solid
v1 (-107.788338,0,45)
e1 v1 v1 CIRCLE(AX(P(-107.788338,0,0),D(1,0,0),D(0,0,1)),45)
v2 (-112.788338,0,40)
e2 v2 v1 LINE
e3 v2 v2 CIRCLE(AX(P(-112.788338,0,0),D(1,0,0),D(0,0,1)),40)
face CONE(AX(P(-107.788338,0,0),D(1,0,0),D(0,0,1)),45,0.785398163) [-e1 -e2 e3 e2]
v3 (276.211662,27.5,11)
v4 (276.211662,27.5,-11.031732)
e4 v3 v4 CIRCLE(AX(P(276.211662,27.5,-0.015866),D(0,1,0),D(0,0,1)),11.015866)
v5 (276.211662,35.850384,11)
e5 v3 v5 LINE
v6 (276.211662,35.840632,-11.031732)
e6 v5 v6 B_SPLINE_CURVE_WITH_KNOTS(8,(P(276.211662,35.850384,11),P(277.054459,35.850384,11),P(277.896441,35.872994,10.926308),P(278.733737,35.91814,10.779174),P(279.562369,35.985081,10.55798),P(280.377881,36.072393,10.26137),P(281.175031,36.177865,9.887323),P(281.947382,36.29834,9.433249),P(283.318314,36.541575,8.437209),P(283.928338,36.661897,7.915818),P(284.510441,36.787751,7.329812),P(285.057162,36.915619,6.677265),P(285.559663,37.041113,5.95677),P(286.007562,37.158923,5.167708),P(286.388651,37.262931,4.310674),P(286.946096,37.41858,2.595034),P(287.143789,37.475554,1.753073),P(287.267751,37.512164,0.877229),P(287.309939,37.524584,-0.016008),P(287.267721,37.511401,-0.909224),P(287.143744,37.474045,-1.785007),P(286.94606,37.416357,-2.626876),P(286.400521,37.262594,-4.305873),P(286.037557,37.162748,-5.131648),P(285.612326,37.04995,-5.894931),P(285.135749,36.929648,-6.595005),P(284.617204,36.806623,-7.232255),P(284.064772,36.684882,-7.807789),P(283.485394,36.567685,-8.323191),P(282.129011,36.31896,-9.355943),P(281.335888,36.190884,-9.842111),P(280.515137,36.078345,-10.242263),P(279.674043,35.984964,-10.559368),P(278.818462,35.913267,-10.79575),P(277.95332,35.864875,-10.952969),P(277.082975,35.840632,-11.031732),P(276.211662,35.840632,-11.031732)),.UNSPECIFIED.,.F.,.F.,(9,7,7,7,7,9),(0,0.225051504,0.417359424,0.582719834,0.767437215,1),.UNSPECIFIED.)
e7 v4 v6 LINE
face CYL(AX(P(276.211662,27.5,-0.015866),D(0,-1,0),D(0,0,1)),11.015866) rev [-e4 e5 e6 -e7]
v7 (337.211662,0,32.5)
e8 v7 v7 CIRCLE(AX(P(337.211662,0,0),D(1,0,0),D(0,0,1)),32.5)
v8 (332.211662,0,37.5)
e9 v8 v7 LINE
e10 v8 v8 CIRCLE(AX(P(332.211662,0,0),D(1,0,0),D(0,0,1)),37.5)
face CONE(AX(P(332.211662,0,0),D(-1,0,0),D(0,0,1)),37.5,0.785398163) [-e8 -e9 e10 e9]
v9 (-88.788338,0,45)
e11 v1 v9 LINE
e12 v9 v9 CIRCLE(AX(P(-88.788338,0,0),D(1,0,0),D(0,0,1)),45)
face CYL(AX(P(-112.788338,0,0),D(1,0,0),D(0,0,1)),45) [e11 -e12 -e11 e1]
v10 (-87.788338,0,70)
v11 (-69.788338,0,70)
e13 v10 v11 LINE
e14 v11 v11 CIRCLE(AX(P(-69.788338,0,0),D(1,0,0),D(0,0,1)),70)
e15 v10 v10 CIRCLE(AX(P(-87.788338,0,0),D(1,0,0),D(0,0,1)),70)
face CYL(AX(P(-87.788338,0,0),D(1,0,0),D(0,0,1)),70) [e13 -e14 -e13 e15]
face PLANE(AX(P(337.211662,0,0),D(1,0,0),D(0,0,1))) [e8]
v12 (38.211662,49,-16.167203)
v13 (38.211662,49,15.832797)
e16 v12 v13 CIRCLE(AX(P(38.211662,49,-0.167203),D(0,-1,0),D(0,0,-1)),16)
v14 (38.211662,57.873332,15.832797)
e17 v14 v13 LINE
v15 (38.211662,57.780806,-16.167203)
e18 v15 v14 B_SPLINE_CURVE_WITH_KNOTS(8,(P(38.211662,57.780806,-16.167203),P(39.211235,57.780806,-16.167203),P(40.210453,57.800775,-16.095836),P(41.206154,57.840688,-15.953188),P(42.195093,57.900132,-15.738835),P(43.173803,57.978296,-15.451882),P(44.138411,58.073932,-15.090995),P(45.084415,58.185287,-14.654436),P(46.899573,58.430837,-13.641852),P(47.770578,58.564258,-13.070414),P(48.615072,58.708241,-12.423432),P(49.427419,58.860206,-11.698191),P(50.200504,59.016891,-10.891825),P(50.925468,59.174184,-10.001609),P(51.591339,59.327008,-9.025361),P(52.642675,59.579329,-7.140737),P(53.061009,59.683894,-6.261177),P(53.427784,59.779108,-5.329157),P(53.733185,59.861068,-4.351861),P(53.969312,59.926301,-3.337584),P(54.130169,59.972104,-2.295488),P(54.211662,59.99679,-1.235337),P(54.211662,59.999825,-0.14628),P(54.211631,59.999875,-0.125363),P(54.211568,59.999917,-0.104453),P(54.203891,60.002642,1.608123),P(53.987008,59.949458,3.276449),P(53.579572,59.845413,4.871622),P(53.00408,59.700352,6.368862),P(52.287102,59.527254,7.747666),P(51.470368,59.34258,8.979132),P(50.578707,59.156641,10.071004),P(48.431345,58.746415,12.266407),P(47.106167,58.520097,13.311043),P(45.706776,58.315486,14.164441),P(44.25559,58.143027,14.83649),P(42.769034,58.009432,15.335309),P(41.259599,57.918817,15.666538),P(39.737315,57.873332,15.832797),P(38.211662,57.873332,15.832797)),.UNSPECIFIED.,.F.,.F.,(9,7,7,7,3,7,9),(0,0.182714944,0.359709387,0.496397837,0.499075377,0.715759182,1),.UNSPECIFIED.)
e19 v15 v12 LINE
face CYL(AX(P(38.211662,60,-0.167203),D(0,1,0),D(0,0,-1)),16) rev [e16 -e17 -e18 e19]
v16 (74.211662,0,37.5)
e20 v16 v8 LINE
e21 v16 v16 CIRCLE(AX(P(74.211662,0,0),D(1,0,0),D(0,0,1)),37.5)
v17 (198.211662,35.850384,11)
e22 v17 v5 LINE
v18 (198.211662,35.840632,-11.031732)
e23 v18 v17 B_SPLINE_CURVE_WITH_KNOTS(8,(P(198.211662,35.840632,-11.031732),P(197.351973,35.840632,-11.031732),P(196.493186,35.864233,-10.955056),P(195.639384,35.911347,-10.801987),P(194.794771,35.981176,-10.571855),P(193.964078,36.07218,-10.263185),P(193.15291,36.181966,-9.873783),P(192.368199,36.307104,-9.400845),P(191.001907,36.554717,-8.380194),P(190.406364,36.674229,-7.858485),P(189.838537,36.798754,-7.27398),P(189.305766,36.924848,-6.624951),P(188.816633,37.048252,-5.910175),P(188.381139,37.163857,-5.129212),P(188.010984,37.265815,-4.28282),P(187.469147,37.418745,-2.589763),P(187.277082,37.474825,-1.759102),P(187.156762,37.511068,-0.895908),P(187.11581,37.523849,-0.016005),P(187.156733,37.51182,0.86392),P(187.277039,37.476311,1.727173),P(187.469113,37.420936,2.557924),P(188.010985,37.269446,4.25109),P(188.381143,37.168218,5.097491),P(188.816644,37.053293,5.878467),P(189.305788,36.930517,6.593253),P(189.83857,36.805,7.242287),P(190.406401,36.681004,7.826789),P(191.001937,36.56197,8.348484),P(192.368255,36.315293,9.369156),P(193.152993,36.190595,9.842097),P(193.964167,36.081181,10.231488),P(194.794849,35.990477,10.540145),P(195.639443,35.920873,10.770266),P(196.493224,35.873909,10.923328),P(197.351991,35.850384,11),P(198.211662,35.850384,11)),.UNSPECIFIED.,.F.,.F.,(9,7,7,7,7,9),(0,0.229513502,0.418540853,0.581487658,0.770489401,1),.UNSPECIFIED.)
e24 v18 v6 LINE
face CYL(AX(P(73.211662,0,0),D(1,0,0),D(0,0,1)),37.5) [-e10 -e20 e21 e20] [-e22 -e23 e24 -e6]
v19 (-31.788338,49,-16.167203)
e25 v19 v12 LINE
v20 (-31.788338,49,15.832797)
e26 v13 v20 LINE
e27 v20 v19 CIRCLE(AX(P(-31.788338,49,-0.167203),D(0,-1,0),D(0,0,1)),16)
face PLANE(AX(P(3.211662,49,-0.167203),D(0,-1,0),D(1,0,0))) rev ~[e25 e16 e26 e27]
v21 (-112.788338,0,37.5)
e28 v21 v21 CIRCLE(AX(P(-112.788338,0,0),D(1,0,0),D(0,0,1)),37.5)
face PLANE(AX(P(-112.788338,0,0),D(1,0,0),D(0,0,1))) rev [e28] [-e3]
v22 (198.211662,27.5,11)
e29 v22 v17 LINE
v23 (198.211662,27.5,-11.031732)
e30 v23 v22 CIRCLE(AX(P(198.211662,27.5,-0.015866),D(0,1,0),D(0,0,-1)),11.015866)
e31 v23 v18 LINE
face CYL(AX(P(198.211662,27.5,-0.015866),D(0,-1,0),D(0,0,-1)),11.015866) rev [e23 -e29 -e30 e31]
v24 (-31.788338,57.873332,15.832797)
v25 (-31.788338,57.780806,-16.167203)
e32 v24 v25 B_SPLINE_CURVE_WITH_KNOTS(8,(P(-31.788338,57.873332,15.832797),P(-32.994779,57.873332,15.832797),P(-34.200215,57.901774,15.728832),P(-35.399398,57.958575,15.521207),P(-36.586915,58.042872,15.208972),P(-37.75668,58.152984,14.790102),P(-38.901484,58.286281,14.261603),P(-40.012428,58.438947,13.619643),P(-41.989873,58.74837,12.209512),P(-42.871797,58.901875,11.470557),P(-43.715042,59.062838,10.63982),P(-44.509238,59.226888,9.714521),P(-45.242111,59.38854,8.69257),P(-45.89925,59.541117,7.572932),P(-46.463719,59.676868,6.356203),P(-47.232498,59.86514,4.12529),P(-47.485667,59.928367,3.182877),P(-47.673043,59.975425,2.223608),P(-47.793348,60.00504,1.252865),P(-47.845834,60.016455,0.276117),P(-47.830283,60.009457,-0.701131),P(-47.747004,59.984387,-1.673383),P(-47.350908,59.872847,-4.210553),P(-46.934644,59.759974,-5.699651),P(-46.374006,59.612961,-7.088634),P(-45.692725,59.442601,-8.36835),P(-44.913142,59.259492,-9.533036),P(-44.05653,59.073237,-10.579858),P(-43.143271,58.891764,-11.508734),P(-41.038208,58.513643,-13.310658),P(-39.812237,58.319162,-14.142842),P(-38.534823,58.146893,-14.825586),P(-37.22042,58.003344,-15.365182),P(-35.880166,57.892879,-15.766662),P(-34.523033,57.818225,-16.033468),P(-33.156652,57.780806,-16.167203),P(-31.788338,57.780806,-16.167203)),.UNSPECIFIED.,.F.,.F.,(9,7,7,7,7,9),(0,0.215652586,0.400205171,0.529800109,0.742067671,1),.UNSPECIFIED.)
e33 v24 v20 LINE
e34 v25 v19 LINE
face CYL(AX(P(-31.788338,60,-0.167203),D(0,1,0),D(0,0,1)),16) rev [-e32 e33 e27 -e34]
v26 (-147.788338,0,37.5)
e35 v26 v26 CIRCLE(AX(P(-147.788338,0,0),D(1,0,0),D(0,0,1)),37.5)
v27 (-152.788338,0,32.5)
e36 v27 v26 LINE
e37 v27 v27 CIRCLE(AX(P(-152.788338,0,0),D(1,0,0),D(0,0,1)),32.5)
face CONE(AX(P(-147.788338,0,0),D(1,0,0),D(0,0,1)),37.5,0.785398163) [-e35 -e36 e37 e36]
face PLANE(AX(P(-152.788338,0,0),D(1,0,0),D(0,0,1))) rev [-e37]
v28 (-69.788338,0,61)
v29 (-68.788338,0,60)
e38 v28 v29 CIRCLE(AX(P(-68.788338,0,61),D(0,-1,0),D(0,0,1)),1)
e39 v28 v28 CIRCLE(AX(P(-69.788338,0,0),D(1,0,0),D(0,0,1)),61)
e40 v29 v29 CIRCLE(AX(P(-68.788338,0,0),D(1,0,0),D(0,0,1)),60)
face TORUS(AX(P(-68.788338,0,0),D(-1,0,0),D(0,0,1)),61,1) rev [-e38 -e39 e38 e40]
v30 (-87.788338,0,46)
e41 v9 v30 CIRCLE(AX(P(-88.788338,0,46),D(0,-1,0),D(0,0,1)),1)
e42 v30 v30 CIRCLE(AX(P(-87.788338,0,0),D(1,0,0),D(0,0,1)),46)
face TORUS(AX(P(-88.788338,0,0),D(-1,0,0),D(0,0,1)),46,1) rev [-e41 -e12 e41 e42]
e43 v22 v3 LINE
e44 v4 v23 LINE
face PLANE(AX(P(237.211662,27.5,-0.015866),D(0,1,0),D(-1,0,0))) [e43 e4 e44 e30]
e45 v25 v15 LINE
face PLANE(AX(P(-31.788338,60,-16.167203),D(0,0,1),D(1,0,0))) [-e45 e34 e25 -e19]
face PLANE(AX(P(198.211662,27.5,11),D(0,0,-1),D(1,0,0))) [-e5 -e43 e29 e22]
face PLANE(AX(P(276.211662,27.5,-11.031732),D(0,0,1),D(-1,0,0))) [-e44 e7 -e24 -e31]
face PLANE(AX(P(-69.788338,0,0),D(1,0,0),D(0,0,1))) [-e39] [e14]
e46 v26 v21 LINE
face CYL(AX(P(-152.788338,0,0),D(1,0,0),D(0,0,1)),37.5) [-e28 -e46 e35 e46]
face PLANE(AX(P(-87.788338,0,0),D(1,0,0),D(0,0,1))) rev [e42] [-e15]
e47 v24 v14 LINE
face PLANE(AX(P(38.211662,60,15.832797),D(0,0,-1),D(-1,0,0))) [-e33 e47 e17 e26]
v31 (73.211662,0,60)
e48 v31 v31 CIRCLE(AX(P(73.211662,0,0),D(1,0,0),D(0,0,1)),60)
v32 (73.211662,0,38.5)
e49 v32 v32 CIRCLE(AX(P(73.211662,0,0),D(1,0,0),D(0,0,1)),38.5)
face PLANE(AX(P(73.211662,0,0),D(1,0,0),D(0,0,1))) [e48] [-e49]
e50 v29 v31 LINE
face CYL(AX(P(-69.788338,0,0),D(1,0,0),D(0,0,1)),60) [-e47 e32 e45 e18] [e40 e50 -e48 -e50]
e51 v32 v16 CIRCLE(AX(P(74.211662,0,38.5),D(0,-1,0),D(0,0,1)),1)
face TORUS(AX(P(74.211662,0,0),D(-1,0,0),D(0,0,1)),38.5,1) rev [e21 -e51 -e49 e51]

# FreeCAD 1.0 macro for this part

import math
import FreeCAD as App
import Part
import Sketcher
from FreeCAD import Vector
Q = App.Units.Quantity


def edges_at(feature, points):
    """Names of the edges that pass closest to the given points."""
    edges = feature.Shape.Edges
    near = lambda p: min(range(len(edges)), key=lambda i: edges[i].distToShape(Part.Vertex(*p))[0])
    return sorted({f"Edge{near(p) + 1}" for p in points})


def add_polygon(sketch, points):
    """Adds a closed chain of lines whose ends are joined by coincident constraints."""
    first, n = sketch.GeometryCount, len(points)
    for a, b in zip(points, points[1:] + points[:1]):
        sketch.addGeometry(Part.LineSegment(App.Vector(*a, 0), App.Vector(*b, 0)), False)
    for i in range(n):
        sketch.addConstraint(Sketcher.Constraint("Coincident", first + i, 2, first + (i + 1) % n, 1))

doc = App.newDocument("Part")
body = doc.addObject("PartDesign::Body", "Body")

# Sketch on XY plane
sketch1 = doc.addObject("Sketcher::SketchObject", "Sketch")
body.addObject(sketch1)
sketch1.AttachmentSupport = (doc.XY_Plane, [""])
sketch1.MapMode = "FlatFace"
add_polygon(sketch1, [(-152.788338, 37.5), (-152.788338, 0), (337.211662, 0), (337.211662, 37.5), (73.211662, 37.5), (73.211662, 60), (-69.788338, 60), (-69.788338, 70), (-87.788338, 70), (-87.788338, 45), (-112.788338, 45), (-112.788338, 37.5)])  # lines 0-11
sketch1.addConstraint(Sketcher.Constraint("Vertical", 0))
sketch1.addConstraint(Sketcher.Constraint("Horizontal", 1))
sketch1.addConstraint(Sketcher.Constraint("Vertical", 2))
sketch1.addConstraint(Sketcher.Constraint("Horizontal", 3))
sketch1.addConstraint(Sketcher.Constraint("Vertical", 4))
sketch1.addConstraint(Sketcher.Constraint("Horizontal", 5))
sketch1.addConstraint(Sketcher.Constraint("Vertical", 6))
sketch1.addConstraint(Sketcher.Constraint("Horizontal", 7))
sketch1.addConstraint(Sketcher.Constraint("Vertical", 8))
sketch1.addConstraint(Sketcher.Constraint("Horizontal", 9))
sketch1.addConstraint(Sketcher.Constraint("Vertical", 10))
sketch1.addConstraint(Sketcher.Constraint("Horizontal", 11))
sketch1.addConstraint(Sketcher.Constraint("PointOnObject", 0, 2, -1))
sketch1.addConstraint(Sketcher.Constraint("Horizontal", 3, 2, 10, 2))
sketch1.addConstraint(Sketcher.Constraint("Equal", 9, 8))
sketch1.addConstraint(Sketcher.Constraint("DistanceX", 1, 1, 1, 2, Q("490 mm")))
sketch1.addConstraint(Sketcher.Constraint("DistanceX", 3, 2, 3, 1, Q("264 mm")))
sketch1.addConstraint(Sketcher.Constraint("DistanceX", 5, 2, 5, 1, Q("143 mm")))
sketch1.addConstraint(Sketcher.Constraint("DistanceX", 7, 2, 7, 1, Q("18 mm")))
sketch1.addConstraint(Sketcher.Constraint("DistanceX", 9, 2, 9, 1, Q("25 mm")))
sketch1.addConstraint(Sketcher.Constraint("DistanceY", 6, 1, 6, 2, Q("10 mm")))
sketch1.addConstraint(Sketcher.Constraint("DistanceY", 0, 2, 0, 1, Q("37.5 mm")))
sketch1.addConstraint(Sketcher.Constraint("DistanceY", 4, 1, 4, 2, Q("22.5 mm")))
sketch1.addConstraint(Sketcher.Constraint("DistanceX", 0, 2, -1, 1, Q("152.788338 mm")))
revolution = doc.addObject("PartDesign::Revolution", "Revolution")
body.addObject(revolution)
revolution.Profile = sketch1
revolution.ReferenceAxis = (sketch1, ["H_Axis"])
revolution.Angle = 360

# Sketch on XZ plane
sketch2 = doc.addObject("Sketcher::SketchObject", "Sketch001")
body.addObject(sketch2)
sketch2.AttachmentSupport = (doc.XZ_Plane, [""])
sketch2.MapMode = "FlatFace"
sketch2.AttachmentOffset = App.Placement(Vector(0, 0, -60), App.Rotation())
sketch2.addGeometry(Part.LineSegment(Vector(-31.788338, 15.832797, 0), Vector(38.211662, 15.832797, 0)), False)
sketch2.addGeometry(Part.ArcOfCircle(Part.Circle(Vector(38.211662, -0.167203, 0), Vector(0, 0, 1), 16), math.radians(-90), math.radians(90)), False)
sketch2.addGeometry(Part.LineSegment(Vector(38.211662, -16.167203, 0), Vector(-31.788338, -16.167203, 0)), False)
sketch2.addGeometry(Part.ArcOfCircle(Part.Circle(Vector(-31.788338, -0.167203, 0), Vector(0, 0, 1), 16), math.radians(90), math.radians(270)), False)
sketch2.addConstraint(Sketcher.Constraint("Tangent", 0, 2, 1, 2))
sketch2.addConstraint(Sketcher.Constraint("Tangent", 1, 1, 2, 1))
sketch2.addConstraint(Sketcher.Constraint("Tangent", 2, 2, 3, 2))
sketch2.addConstraint(Sketcher.Constraint("Tangent", 3, 1, 0, 1))
sketch2.addConstraint(Sketcher.Constraint("Horizontal", 0))
sketch2.addConstraint(Sketcher.Constraint("Horizontal", 2))
sketch2.addConstraint(Sketcher.Constraint("Radius", 1, Q("16 mm")))
sketch2.addConstraint(Sketcher.Constraint("DistanceX", 0, 1, 0, 2, Q("70 mm")))
sketch2.addConstraint(Sketcher.Constraint("DistanceX", -1, 1, 1, 3, Q("38.211662 mm")))
sketch2.addConstraint(Sketcher.Constraint("DistanceY", 1, 3, -1, 1, Q("0.167203 mm")))
pocket1 = doc.addObject("PartDesign::Pocket", "Pocket")
body.addObject(pocket1)
pocket1.Profile = sketch2
pocket1.Length = 11
pocket1.Reversed = True

# Sketch on XZ plane
sketch3 = doc.addObject("Sketcher::SketchObject", "Sketch002")
body.addObject(sketch3)
sketch3.AttachmentSupport = (doc.XZ_Plane, [""])
sketch3.MapMode = "FlatFace"
sketch3.AttachmentOffset = App.Placement(Vector(0, 0, -28.5), App.Rotation())
sketch3.addGeometry(Part.LineSegment(Vector(198.211662, 11, 0), Vector(276.211662, 11, 0)), False)
sketch3.addGeometry(Part.ArcOfCircle(Part.Circle(Vector(276.211662, -0.015866, 0), Vector(0, 0, 1), 11.015866), math.radians(-90), math.radians(90)), False)
sketch3.addGeometry(Part.LineSegment(Vector(276.211662, -11.031732, 0), Vector(198.211662, -11.031732, 0)), False)
sketch3.addGeometry(Part.ArcOfCircle(Part.Circle(Vector(198.211662, -0.015866, 0), Vector(0, 0, 1), 11.015866), math.radians(90), math.radians(270)), False)
sketch3.addConstraint(Sketcher.Constraint("Tangent", 0, 2, 1, 2))
sketch3.addConstraint(Sketcher.Constraint("Tangent", 1, 1, 2, 1))
sketch3.addConstraint(Sketcher.Constraint("Tangent", 2, 2, 3, 2))
sketch3.addConstraint(Sketcher.Constraint("Tangent", 3, 1, 0, 1))
sketch3.addConstraint(Sketcher.Constraint("Horizontal", 0))
sketch3.addConstraint(Sketcher.Constraint("Horizontal", 2))
sketch3.addConstraint(Sketcher.Constraint("DistanceX", 0, 1, 0, 2, Q("78 mm")))
sketch3.addConstraint(Sketcher.Constraint("DistanceY", -1, 1, 0, 2, Q("11 mm")))
sketch3.addConstraint(Sketcher.Constraint("Radius", 1, Q("11.015866 mm")))
sketch3.addConstraint(Sketcher.Constraint("DistanceX", -1, 1, 1, 3, Q("276.211662 mm")))
pocket2 = doc.addObject("PartDesign::Pocket", "Pocket001")
body.addObject(pocket2)
pocket2.Profile = sketch3
pocket2.Type = "TwoLengths"
pocket2.Length = 359.209373
pocket2.Length2 = 1
doc.recompute()

chamfer = doc.addObject("PartDesign::Chamfer", "Chamfer")
body.addObject(chamfer)
chamfer.Base = (pocket2, edges_at(pocket2, [(-112.788, 0, -45), (-152.788, 0, -37.5), (337.212, 0, -37.5)]))
chamfer.Size = 5
doc.recompute()

fillet = doc.addObject("PartDesign::Fillet", "Fillet")
body.addObject(fillet)
fillet.Base = (chamfer, edges_at(chamfer, [(-69.788, 0, -60), (-87.788, 0, -45), (73.212, 0, -37.5)]))
fillet.Radius = 1

doc.recompute()
